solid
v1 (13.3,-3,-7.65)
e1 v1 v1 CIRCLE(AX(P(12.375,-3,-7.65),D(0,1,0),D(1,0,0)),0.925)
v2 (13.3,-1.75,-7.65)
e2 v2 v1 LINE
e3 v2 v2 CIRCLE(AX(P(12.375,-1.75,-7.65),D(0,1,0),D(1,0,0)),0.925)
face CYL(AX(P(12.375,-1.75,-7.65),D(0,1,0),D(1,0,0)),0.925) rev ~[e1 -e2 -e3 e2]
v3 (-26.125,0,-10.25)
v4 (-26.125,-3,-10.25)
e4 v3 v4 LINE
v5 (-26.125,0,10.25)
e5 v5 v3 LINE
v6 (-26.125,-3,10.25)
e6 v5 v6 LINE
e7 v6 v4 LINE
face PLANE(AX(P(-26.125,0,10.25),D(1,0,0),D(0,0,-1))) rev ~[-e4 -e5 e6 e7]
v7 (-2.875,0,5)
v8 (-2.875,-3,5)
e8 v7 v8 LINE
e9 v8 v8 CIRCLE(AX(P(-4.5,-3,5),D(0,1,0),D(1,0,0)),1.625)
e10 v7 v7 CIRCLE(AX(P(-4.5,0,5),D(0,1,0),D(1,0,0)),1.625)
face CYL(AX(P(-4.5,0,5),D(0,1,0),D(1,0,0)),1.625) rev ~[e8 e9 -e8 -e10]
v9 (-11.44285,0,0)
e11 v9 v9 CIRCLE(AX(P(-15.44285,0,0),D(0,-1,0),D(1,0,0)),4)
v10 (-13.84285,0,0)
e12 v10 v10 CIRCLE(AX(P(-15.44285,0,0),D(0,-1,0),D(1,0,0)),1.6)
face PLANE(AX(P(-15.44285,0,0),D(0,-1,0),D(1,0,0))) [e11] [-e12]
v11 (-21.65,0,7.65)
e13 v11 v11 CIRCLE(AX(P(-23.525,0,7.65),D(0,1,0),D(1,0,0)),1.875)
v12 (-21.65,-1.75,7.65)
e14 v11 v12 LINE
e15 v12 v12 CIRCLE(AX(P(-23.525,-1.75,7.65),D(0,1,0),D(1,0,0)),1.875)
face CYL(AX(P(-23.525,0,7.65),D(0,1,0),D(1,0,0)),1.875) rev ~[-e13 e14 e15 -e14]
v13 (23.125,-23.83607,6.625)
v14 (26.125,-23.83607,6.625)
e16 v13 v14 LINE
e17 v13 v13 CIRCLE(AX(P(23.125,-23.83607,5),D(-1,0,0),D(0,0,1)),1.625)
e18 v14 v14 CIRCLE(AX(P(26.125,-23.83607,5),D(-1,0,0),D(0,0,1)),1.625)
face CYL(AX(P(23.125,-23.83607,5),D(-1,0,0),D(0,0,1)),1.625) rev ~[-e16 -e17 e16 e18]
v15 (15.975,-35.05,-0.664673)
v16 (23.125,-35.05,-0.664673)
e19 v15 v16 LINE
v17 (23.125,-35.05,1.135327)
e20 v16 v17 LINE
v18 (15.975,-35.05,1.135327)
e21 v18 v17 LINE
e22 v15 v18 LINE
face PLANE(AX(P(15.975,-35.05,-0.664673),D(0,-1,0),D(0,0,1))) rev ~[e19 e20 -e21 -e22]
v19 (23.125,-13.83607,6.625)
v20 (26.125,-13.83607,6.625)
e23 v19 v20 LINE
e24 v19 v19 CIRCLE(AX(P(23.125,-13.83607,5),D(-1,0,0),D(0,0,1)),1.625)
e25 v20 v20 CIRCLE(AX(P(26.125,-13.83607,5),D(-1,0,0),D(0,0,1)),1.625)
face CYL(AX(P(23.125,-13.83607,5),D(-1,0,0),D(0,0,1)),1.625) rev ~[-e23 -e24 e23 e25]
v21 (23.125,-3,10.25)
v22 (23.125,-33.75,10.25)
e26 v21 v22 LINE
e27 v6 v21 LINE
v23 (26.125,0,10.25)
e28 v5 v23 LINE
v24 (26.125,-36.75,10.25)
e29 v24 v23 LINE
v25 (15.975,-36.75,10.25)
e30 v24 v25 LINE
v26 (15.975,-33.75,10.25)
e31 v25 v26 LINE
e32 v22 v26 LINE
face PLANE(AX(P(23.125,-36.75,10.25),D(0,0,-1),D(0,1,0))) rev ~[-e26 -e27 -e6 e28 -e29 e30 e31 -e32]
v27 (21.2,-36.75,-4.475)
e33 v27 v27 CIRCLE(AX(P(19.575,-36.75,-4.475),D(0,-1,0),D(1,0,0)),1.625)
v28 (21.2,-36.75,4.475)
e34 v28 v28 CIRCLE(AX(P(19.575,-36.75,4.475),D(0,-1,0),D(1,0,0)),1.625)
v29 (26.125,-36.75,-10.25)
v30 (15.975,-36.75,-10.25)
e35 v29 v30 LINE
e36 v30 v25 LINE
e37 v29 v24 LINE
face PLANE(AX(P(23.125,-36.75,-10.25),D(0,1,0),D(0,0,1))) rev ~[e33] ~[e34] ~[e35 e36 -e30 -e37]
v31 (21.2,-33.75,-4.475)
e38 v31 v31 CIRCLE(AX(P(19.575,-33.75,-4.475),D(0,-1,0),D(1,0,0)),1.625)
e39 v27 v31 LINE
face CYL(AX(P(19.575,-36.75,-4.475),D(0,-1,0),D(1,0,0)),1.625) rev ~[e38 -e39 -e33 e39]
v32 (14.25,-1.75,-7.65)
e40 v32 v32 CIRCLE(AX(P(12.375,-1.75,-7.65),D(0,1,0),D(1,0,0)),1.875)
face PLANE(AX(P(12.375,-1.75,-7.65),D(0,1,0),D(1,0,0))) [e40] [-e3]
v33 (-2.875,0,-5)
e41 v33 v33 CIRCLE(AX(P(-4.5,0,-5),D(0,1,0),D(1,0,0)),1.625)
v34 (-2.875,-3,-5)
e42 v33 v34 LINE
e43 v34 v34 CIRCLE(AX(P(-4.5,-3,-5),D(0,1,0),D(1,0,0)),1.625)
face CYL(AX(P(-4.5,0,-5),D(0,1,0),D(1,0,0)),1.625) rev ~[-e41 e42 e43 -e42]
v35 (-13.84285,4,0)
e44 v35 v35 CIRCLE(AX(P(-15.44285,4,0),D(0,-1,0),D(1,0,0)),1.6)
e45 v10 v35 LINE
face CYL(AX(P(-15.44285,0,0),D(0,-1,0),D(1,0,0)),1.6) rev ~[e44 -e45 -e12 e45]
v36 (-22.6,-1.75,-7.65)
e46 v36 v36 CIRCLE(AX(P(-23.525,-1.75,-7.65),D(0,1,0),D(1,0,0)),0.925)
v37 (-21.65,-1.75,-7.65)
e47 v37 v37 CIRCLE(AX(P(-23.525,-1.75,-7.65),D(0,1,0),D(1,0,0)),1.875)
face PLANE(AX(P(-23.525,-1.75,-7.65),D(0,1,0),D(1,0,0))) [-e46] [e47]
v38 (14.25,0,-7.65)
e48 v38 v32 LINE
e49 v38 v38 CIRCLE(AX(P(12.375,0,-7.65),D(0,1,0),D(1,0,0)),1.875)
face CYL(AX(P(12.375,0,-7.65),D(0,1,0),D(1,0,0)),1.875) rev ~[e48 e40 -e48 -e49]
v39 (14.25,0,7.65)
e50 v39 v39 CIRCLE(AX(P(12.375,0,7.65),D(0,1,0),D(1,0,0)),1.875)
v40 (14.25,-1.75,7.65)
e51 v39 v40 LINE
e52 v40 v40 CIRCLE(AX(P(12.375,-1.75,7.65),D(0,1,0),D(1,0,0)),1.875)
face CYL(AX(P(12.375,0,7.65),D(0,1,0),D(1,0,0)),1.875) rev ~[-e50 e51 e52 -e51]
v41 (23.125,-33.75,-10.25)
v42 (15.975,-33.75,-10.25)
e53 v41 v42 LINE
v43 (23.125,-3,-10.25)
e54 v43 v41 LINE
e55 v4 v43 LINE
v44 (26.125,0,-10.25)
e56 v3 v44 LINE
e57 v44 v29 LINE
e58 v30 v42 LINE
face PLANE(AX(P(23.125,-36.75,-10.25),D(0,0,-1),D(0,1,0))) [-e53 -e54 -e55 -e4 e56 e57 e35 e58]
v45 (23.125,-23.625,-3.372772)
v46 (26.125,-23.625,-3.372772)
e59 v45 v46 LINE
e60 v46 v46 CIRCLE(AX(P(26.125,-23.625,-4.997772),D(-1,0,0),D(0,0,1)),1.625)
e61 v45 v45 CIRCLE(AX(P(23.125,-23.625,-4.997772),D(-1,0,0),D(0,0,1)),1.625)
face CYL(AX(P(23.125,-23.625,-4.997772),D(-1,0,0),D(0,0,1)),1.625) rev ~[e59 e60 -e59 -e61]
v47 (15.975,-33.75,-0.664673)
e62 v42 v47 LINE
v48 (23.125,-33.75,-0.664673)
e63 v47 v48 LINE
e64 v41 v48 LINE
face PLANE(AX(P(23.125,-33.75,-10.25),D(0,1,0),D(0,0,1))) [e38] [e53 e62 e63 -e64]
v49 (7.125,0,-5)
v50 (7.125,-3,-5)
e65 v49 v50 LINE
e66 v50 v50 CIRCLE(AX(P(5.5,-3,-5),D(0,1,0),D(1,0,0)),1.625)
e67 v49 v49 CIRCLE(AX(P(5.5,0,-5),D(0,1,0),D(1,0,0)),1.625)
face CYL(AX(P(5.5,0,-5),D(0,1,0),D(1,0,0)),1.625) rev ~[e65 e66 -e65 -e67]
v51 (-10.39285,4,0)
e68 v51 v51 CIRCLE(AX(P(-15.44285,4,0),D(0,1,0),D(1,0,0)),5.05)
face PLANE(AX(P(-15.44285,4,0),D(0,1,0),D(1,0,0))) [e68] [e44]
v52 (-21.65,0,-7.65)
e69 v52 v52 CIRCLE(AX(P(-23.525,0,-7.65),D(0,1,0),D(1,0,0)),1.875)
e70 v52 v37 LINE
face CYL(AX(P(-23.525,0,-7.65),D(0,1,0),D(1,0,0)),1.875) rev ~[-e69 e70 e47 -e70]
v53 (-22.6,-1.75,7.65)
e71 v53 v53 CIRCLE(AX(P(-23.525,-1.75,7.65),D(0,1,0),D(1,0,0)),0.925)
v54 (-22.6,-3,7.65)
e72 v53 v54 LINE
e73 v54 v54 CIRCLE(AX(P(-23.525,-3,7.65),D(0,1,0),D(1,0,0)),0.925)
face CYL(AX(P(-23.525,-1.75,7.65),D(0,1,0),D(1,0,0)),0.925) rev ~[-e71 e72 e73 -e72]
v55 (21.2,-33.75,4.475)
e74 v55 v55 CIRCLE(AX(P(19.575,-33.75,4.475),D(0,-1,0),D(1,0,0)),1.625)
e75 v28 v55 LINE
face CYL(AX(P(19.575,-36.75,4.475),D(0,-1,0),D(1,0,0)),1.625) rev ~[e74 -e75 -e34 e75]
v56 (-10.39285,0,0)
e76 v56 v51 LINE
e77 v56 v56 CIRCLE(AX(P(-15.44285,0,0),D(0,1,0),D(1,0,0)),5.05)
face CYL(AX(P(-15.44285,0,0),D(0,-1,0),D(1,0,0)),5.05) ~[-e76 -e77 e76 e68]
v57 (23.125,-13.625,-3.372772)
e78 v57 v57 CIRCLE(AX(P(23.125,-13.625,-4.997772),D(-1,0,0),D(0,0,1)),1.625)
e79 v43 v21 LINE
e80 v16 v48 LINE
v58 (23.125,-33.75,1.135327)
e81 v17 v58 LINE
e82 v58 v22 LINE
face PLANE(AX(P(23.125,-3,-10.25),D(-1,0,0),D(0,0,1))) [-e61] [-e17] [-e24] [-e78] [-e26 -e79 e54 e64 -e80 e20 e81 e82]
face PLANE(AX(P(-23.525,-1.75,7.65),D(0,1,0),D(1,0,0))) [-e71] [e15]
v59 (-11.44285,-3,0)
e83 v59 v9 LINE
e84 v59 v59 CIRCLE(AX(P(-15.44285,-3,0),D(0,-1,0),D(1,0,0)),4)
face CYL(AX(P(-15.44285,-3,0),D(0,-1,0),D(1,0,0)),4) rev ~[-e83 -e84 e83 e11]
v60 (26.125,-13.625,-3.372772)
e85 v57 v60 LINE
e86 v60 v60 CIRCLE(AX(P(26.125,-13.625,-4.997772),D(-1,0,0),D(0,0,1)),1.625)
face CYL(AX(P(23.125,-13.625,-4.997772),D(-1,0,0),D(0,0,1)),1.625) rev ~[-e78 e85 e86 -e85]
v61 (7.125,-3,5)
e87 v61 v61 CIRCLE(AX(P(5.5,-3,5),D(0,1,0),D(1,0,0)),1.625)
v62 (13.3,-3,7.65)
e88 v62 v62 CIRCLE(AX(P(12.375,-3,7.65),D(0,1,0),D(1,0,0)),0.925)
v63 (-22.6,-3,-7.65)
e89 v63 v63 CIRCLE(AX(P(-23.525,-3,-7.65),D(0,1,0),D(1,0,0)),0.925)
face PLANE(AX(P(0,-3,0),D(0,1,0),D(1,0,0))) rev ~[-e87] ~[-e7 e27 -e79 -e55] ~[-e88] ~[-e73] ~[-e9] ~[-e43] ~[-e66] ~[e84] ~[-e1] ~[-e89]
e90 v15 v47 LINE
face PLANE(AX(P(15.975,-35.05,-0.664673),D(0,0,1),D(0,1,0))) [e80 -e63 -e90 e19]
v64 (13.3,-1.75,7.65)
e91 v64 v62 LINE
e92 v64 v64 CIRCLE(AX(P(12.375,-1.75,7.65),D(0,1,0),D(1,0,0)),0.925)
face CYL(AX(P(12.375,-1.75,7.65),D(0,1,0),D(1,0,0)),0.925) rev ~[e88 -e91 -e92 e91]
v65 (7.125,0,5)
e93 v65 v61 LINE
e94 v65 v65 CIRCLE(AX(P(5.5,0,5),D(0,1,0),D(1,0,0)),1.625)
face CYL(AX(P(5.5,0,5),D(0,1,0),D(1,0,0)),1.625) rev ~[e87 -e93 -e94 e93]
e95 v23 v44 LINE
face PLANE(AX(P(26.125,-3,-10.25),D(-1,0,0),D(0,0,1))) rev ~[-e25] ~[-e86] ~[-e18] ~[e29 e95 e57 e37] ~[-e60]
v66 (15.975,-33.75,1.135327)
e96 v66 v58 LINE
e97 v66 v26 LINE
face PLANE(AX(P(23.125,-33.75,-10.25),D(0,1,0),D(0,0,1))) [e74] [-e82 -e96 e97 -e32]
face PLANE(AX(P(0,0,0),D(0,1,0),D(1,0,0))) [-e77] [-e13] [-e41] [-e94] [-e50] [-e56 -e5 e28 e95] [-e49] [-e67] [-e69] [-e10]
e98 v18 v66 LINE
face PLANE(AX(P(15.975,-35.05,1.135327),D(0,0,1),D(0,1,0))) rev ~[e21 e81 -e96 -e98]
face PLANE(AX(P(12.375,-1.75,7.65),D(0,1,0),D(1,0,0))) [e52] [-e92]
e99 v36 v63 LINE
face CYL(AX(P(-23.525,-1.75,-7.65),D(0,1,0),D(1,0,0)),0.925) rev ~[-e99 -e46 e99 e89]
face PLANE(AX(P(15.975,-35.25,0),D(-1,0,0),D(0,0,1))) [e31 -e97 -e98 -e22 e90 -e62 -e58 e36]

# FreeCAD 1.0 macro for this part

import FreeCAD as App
import Part
import Sketcher
from FreeCAD import Vector


def add_polygon(sketch, points):
    """Adds a closed chain of lines whose ends are joined by coincident constraints."""
    first, n = sketch.GeometryCount, len(points)
    for a, b in zip(points, points[1:] + points[:1]):
        sketch.addGeometry(Part.LineSegment(App.Vector(*a, 0), App.Vector(*b, 0)), False)
    for i in range(n):
        sketch.addConstraint(Sketcher.Constraint("Coincident", first + i, 2, first + (i + 1) % n, 1))

doc = App.newDocument("Part")
body = doc.addObject("PartDesign::Body", "Body")

sketch1 = body.newObject("Sketcher::SketchObject", "Sketch")
sketch1.AttachmentSupport = (doc.getObject("XZ_Plane"), [""])
sketch1.MapMode = "FlatFace"
add_polygon(sketch1, [(-26, -10), (-26, 10), (26, 10), (26, -10)])
sketch1.addConstraint(Sketcher.Constraint("Vertical", 0))
sketch1.addConstraint(Sketcher.Constraint("Horizontal", 1))
sketch1.addConstraint(Sketcher.Constraint("Vertical", 2))
sketch1.addConstraint(Sketcher.Constraint("Horizontal", 3))
sketch1.addConstraint(Sketcher.Constraint("Symmetric", 0, 2, 2, 2, -1, 1))
sketch1.addConstraint(Sketcher.Constraint("DistanceY", 0, 1, 0, 2, 20.5))
sketch1.addConstraint(Sketcher.Constraint("DistanceX", 1, 1, 1, 2, 52.25))
pad1 = body.newObject("PartDesign::Pad", "Pad")
pad1.Profile = sketch1
pad1.Length = 3

sketch2 = body.newObject("Sketcher::SketchObject", "Sketch001")
sketch2.AttachmentSupport = (doc.getObject("XZ_Plane"), [""])
sketch2.MapMode = "FlatFace"
sketch2.AttachmentOffset = App.Placement(Vector(0, 0, 3), App.Rotation())
add_polygon(sketch2, [(23.1, 10.2), (23.1, -10.2), (26.1, -10.2), (26.1, 10.2)])
sketch2.addConstraint(Sketcher.Constraint("Vertical", 0))
sketch2.addConstraint(Sketcher.Constraint("Horizontal", 1))
sketch2.addConstraint(Sketcher.Constraint("Vertical", 2))
sketch2.addConstraint(Sketcher.Constraint("Horizontal", 3))
sketch2.addConstraint(Sketcher.Constraint("DistanceX", 1, 1, 1, 2, 3.0))
sketch2.addConstraint(Sketcher.Constraint("DistanceY", 0, 2, 0, 1, 20.5))
sketch2.addConstraint(Sketcher.Constraint("DistanceY", 0, 2, -1, 1, 10.25))
sketch2.addConstraint(Sketcher.Constraint("DistanceX", -1, 1, 0, 2, 23.125))
pad2 = body.newObject("PartDesign::Pad", "Pad001")
pad2.Profile = sketch2
pad2.Length = 33.75

sketch3 = body.newObject("Sketcher::SketchObject", "Sketch002")
sketch3.AttachmentSupport = (doc.getObject("YZ_Plane"), [""])
sketch3.MapMode = "FlatFace"
sketch3.AttachmentOffset = App.Placement(Vector(0, 0, 23.125), App.Rotation())
add_polygon(sketch3, [(-33.8, -10.2), (-36.8, -10.2), (-36.8, 10.2), (-33.8, 10.2)])
sketch3.addConstraint(Sketcher.Constraint("Horizontal", 0))
sketch3.addConstraint(Sketcher.Constraint("Vertical", 1))
sketch3.addConstraint(Sketcher.Constraint("Horizontal", 2))
sketch3.addConstraint(Sketcher.Constraint("Vertical", 3))
sketch3.addConstraint(Sketcher.Constraint("DistanceX", 0, 2, 0, 1, 3.0))
sketch3.addConstraint(Sketcher.Constraint("DistanceY", 1, 1, 1, 2, 20.5))
sketch3.addConstraint(Sketcher.Constraint("DistanceX", 0, 2, -1, 1, 36.75))
sketch3.addConstraint(Sketcher.Constraint("DistanceY", 0, 2, -1, 1, 10.25))
pad3 = body.newObject("PartDesign::Pad", "Pad002")
pad3.Profile = sketch3
pad3.Length = 7.15
pad3.Reversed = True

sketch4 = body.newObject("Sketcher::SketchObject", "Sketch003")
sketch4.AttachmentSupport = (doc.getObject("XZ_Plane"), [""])
sketch4.MapMode = "FlatFace"
sketch4.AttachmentOffset = App.Placement(Vector(0, 0, 36.75), App.Rotation())
sketch4.addGeometry(Part.Circle(Vector(19.6, 4.5, 0), Vector(0, 0, 1), 1.6), False)
sketch4.addGeometry(Part.Circle(Vector(19.6, -4.5, 0), Vector(0, 0, 1), 1.6), False)
sketch4.addConstraint(Sketcher.Constraint("Equal", 0, 1))
sketch4.addConstraint(Sketcher.Constraint("Symmetric", 0, 3, 1, 3, -1))
sketch4.addConstraint(Sketcher.Constraint("Diameter", 0, 3.25))
sketch4.addConstraint(Sketcher.Constraint("DistanceY", 1, 3, 0, 3, 8.95))
sketch4.addConstraint(Sketcher.Constraint("DistanceX", -1, 1, 0, 3, 19.575))
pocket1 = body.newObject("PartDesign::Pocket", "Pocket")
pocket1.Profile = sketch4
pocket1.Length = 3

sketch5 = body.newObject("Sketcher::SketchObject", "Sketch004")
sketch5.AttachmentSupport = (doc.getObject("YZ_Plane"), [""])
sketch5.MapMode = "FlatFace"
sketch5.AttachmentOffset = App.Placement(Vector(0, 0, 15.975), App.Rotation())
add_polygon(sketch5, [(-33.8, -0.7), (-35, -0.7), (-35, 1.1), (-33.8, 1.1)])
sketch5.addConstraint(Sketcher.Constraint("Horizontal", 0))
sketch5.addConstraint(Sketcher.Constraint("Vertical", 1))
sketch5.addConstraint(Sketcher.Constraint("Horizontal", 2))
sketch5.addConstraint(Sketcher.Constraint("Vertical", 3))
sketch5.addConstraint(Sketcher.Constraint("DistanceX", 0, 2, 0, 1, 1.3))
sketch5.addConstraint(Sketcher.Constraint("DistanceY", 1, 1, 1, 2, 1.8))
sketch5.addConstraint(Sketcher.Constraint("DistanceX", 0, 2, -1, 1, 35.05))
sketch5.addConstraint(Sketcher.Constraint("DistanceY", 0, 2, -1, 1, 0.664673))
pocket2 = body.newObject("PartDesign::Pocket", "Pocket001")
pocket2.Profile = sketch5
pocket2.Length = 7.15
pocket2.Reversed = True

sketch6 = body.newObject("Sketcher::SketchObject", "Sketch005")
sketch6.AttachmentSupport = (doc.getObject("YZ_Plane"), [""])
sketch6.MapMode = "FlatFace"
sketch6.AttachmentOffset = App.Placement(Vector(0, 0, 23.125), App.Rotation())
sketch6.addGeometry(Part.Circle(Vector(-13.6, -5, 0), Vector(0, 0, 1), 1.6), False)
sketch6.addGeometry(Part.Circle(Vector(-23.6, -5, 0), Vector(0, 0, 1), 1.6), False)
sketch6.addGeometry(Part.Circle(Vector(-23.8, 5, 0), Vector(0, 0, 1), 1.6), False)
sketch6.addGeometry(Part.Circle(Vector(-13.8, 5, 0), Vector(0, 0, 1), 1.6), False)
sketch6.addConstraint(Sketcher.Constraint("Equal", 0, 1))
sketch6.addConstraint(Sketcher.Constraint("Equal", 1, 2))
sketch6.addConstraint(Sketcher.Constraint("Equal", 2, 3))
sketch6.addConstraint(Sketcher.Constraint("Horizontal", 0, 3, 1, 3))
sketch6.addConstraint(Sketcher.Constraint("Horizontal", 2, 3, 3, 3))
sketch6.addConstraint(Sketcher.Constraint("Diameter", 0, 3.25))
sketch6.addConstraint(Sketcher.Constraint("DistanceY", -1, 1, 2, 3, 5.0))
sketch6.addConstraint(Sketcher.Constraint("DistanceX", 1, 3, 0, 3, 10.0))
sketch6.addConstraint(Sketcher.Constraint("DistanceX", 2, 3, 3, 3, 10.0))
sketch6.addConstraint(Sketcher.Constraint("DistanceX", 0, 3, -1, 1, 13.625))
sketch6.addConstraint(Sketcher.Constraint("DistanceX", 2, 3, -1, 1, 23.83607))
sketch6.addConstraint(Sketcher.Constraint("DistanceY", 0, 3, -1, 1, 4.997772))
pocket3 = body.newObject("PartDesign::Pocket", "Pocket002")
pocket3.Profile = sketch6
pocket3.Length = 3
pocket3.Reversed = True

sketch7 = body.newObject("Sketcher::SketchObject", "Sketch006")
sketch7.AttachmentSupport = (doc.getObject("XZ_Plane"), [""])
sketch7.MapMode = "FlatFace"
sketch7.addGeometry(Part.Circle(Vector(-4.5, -5, 0), Vector(0, 0, 1), 1.6), False)
sketch7.addGeometry(Part.Circle(Vector(-4.5, 5, 0), Vector(0, 0, 1), 1.6), False)
sketch7.addGeometry(Part.Circle(Vector(5.5, -5, 0), Vector(0, 0, 1), 1.6), False)
sketch7.addGeometry(Part.Circle(Vector(5.5, 5, 0), Vector(0, 0, 1), 1.6), False)
sketch7.addConstraint(Sketcher.Constraint("Equal", 0, 1))
sketch7.addConstraint(Sketcher.Constraint("Equal", 1, 2))
sketch7.addConstraint(Sketcher.Constraint("Equal", 2, 3))
sketch7.addConstraint(Sketcher.Constraint("Symmetric", 0, 3, 1, 3, -1))
sketch7.addConstraint(Sketcher.Constraint("Symmetric", 2, 3, 3, 3, -1))
sketch7.addConstraint(Sketcher.Constraint("Horizontal", 0, 3, 2, 3))
sketch7.addConstraint(Sketcher.Constraint("Diameter", 0, 3.25))
sketch7.addConstraint(Sketcher.Constraint("DistanceY", 0, 3, -1, 1, 5.0))
sketch7.addConstraint(Sketcher.Constraint("DistanceX", 0, 3, 2, 3, 10.0))
sketch7.addConstraint(Sketcher.Constraint("DistanceX", 0, 3, -1, 1, 4.5))
pocket4 = body.newObject("PartDesign::Pocket", "Pocket003")
pocket4.Profile = sketch7
pocket4.Length = 3
pocket4.Reversed = True

sketch8 = body.newObject("Sketcher::SketchObject", "Sketch007")
sketch8.AttachmentSupport = (doc.getObject("XZ_Plane"), [""])
sketch8.MapMode = "FlatFace"
sketch8.addGeometry(Part.Circle(Vector(-23.5, -7.7, 0), Vector(0, 0, 1), 1.9), False)
sketch8.addGeometry(Part.Circle(Vector(-23.5, 7.7, 0), Vector(0, 0, 1), 1.9), False)
sketch8.addGeometry(Part.Circle(Vector(12.4, -7.7, 0), Vector(0, 0, 1), 1.9), False)
sketch8.addGeometry(Part.Circle(Vector(12.4, 7.7, 0), Vector(0, 0, 1), 1.9), False)
sketch8.addConstraint(Sketcher.Constraint("Equal", 0, 1))
sketch8.addConstraint(Sketcher.Constraint("Equal", 1, 2))
sketch8.addConstraint(Sketcher.Constraint("Equal", 2, 3))
sketch8.addConstraint(Sketcher.Constraint("Symmetric", 0, 3, 1, 3, -1))
sketch8.addConstraint(Sketcher.Constraint("Symmetric", 2, 3, 3, 3, -1))
sketch8.addConstraint(Sketcher.Constraint("Horizontal", 0, 3, 2, 3))
sketch8.addConstraint(Sketcher.Constraint("Diameter", 0, 3.75))
sketch8.addConstraint(Sketcher.Constraint("DistanceY", 0, 3, 1, 3, 15.3))
sketch8.addConstraint(Sketcher.Constraint("DistanceX", 0, 3, 2, 3, 35.9))
sketch8.addConstraint(Sketcher.Constraint("DistanceX", 0, 3, -1, 1, 23.525))
pocket5 = body.newObject("PartDesign::Pocket", "Pocket004")
pocket5.Profile = sketch8
pocket5.Length = 1.75
pocket5.Reversed = True

sketch9 = body.newObject("Sketcher::SketchObject", "Sketch008")
sketch9.AttachmentSupport = (doc.getObject("XZ_Plane"), [""])
sketch9.MapMode = "FlatFace"
sketch9.AttachmentOffset = App.Placement(Vector(0, 0, 1.75), App.Rotation())
sketch9.addGeometry(Part.Circle(Vector(-23.5, -7.7, 0), Vector(0, 0, 1), 0.9), False)
sketch9.addGeometry(Part.Circle(Vector(-23.5, 7.7, 0), Vector(0, 0, 1), 0.9), False)
sketch9.addGeometry(Part.Circle(Vector(12.4, 7.7, 0), Vector(0, 0, 1), 0.9), False)
sketch9.addGeometry(Part.Circle(Vector(12.4, -7.7, 0), Vector(0, 0, 1), 0.9), False)
sketch9.addConstraint(Sketcher.Constraint("Equal", 0, 1))
sketch9.addConstraint(Sketcher.Constraint("Equal", 1, 2))
sketch9.addConstraint(Sketcher.Constraint("Equal", 2, 3))
sketch9.addConstraint(Sketcher.Constraint("Symmetric", 0, 3, 1, 3, -1))
sketch9.addConstraint(Sketcher.Constraint("Symmetric", 2, 3, 3, 3, -1))
sketch9.addConstraint(Sketcher.Constraint("Horizontal", 1, 3, 2, 3))
sketch9.addConstraint(Sketcher.Constraint("Diameter", 0, 1.85))
sketch9.addConstraint(Sketcher.Constraint("DistanceY", 0, 3, 1, 3, 15.3))
sketch9.addConstraint(Sketcher.Constraint("DistanceX", 1, 3, 2, 3, 35.9))
sketch9.addConstraint(Sketcher.Constraint("DistanceX", 0, 3, -1, 1, 23.525))
pocket6 = body.newObject("PartDesign::Pocket", "Pocket005")
pocket6.Profile = sketch9
pocket6.Length = 1.25
pocket6.Reversed = True

sketch10 = body.newObject("Sketcher::SketchObject", "Sketch009")
sketch10.AttachmentSupport = (doc.getObject("XZ_Plane"), [""])
sketch10.MapMode = "FlatFace"
sketch10.addGeometry(Part.Circle(Vector(-15, 0, 0), Vector(0, 0, 1), 5), False)
sketch10.addConstraint(Sketcher.Constraint("PointOnObject", 0, 3, -1))
sketch10.addConstraint(Sketcher.Constraint("Diameter", 0, 10.1))
sketch10.addConstraint(Sketcher.Constraint("DistanceX", 0, 3, -1, 1, 15.44285))
pad4 = body.newObject("PartDesign::Pad", "Pad003")
pad4.Profile = sketch10
pad4.Length = 4
pad4.Reversed = True

sketch11 = body.newObject("Sketcher::SketchObject", "Sketch010")
sketch11.AttachmentSupport = (doc.getObject("XZ_Plane"), [""])
sketch11.MapMode = "FlatFace"
sketch11.AttachmentOffset = App.Placement(Vector(0, 0, 3), App.Rotation())
sketch11.addGeometry(Part.Circle(Vector(-15.4, 0, 0), Vector(0, 0, 1), 4), False)
sketch11.addConstraint(Sketcher.Constraint("PointOnObject", 0, 3, -1))
sketch11.addConstraint(Sketcher.Constraint("Diameter", 0, 8.0))
sketch11.addConstraint(Sketcher.Constraint("DistanceX", 0, 3, -1, 1, 15.44285))
pocket7 = body.newObject("PartDesign::Pocket", "Pocket006")
pocket7.Profile = sketch11
pocket7.Length = 3

sketch12 = body.newObject("Sketcher::SketchObject", "Sketch011")
sketch12.AttachmentSupport = (doc.getObject("XZ_Plane"), [""])
sketch12.MapMode = "FlatFace"
sketch12.addGeometry(Part.Circle(Vector(-15.4, 0, 0), Vector(0, 0, 1), 1.6), False)
sketch12.addConstraint(Sketcher.Constraint("PointOnObject", 0, 3, -1))
sketch12.addConstraint(Sketcher.Constraint("Diameter", 0, 3.2))
sketch12.addConstraint(Sketcher.Constraint("DistanceX", 0, 3, -1, 1, 15.44285))
pocket8 = body.newObject("PartDesign::Pocket", "Pocket007")
pocket8.Profile = sketch12
pocket8.Length = 4

doc.recompute()
